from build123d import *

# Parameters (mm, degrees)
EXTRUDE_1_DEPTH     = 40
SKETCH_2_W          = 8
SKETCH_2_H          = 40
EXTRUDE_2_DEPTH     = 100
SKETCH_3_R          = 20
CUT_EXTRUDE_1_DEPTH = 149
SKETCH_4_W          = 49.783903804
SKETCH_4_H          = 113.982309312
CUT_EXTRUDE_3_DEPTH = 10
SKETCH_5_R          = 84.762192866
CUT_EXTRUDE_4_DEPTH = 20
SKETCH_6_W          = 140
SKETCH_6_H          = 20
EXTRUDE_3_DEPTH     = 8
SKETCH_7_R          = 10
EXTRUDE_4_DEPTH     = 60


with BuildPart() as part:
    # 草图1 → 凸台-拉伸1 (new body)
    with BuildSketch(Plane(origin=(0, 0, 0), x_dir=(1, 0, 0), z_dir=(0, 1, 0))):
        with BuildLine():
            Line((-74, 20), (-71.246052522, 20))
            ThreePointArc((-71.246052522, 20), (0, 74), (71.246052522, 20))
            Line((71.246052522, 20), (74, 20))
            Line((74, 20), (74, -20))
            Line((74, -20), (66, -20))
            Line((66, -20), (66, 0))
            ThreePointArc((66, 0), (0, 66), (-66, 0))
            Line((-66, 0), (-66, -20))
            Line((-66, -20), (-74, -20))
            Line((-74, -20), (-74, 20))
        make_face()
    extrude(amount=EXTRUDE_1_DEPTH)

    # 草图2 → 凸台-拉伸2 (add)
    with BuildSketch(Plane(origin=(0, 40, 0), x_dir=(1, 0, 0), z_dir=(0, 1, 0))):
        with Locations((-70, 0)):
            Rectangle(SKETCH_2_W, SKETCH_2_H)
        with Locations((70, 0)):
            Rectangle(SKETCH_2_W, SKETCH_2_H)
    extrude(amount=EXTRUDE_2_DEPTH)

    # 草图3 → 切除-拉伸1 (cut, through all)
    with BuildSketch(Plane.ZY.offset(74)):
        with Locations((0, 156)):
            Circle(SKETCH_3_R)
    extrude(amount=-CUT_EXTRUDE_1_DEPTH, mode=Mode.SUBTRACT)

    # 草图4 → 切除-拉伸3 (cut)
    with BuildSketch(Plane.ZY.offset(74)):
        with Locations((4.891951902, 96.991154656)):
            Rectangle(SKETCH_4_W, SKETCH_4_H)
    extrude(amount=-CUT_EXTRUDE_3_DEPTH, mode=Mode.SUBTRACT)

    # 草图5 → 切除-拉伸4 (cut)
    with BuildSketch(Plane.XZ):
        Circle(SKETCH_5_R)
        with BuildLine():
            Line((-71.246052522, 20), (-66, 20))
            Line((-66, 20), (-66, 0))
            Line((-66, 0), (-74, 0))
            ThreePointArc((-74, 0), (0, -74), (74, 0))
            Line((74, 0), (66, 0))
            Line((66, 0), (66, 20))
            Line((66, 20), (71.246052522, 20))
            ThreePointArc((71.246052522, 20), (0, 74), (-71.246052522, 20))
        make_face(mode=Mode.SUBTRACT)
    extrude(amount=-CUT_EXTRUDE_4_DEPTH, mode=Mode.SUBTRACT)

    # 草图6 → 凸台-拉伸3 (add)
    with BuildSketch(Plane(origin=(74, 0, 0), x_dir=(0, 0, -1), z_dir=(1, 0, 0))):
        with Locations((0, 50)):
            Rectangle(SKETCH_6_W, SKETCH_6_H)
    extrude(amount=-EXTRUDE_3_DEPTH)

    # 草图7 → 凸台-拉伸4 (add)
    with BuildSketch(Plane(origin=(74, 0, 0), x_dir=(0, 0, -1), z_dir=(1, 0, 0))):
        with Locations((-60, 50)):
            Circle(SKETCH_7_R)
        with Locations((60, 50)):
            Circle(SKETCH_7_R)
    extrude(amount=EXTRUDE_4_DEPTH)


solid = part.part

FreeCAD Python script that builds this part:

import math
import FreeCAD as App
import Part
import Sketcher

V = App.Vector


def add_polygon(sketch, points):
    """Adds a closed chain of lines whose ends are joined by coincident constraints."""
    first, n = sketch.GeometryCount, len(points)
    for a, b in zip(points, points[1:] + points[:1]):
        sketch.addGeometry(Part.LineSegment(App.Vector(*a, 0), App.Vector(*b, 0)), False)
    for i in range(n):
        sketch.addConstraint(Sketcher.Constraint("Coincident", first + i, 2, first + (i + 1) % n, 1))

doc = App.newDocument("Part")
params = doc.addObject("Spreadsheet::Sheet", "Params")
for row, (alias, value) in enumerate([
    ("sketch1_radius", "66 mm"),
    ("sketch1_radius2", "74 mm"),
    ("sketch1_width", "8 mm"),
    ("sketch1_height", "40 mm"),
    ("pad1_length", "40 mm"),
    ("sketch2_width", "8 mm"),
    ("sketch2_height", "40 mm"),
    ("pad2_length", "100 mm"),
    ("sketch3_diameter", "40 mm"),
    ("pocket2_length", "10 mm"),
    ("sketch5_radius", "74 mm"),
    ("sketch5_width", "8 mm"),
    ("sketch5_height", "20 mm"),
    ("pocket3_length", "20 mm"),
    ("sketch6_width", "20 mm"),
    ("sketch6_height", "140 mm"),
    ("pad3_length", "8 mm"),
    ("sketch7_diameter", "20 mm"),
    ("pad4_length", "60 mm"),
], start=1):
    params.set(f"A{row}", alias)
    params.set(f"B{row}", "=" + value)
    params.setAlias(f"B{row}", alias)

body = doc.addObject("PartDesign::Body", "Body")

# Sketch on XZ plane
sketch1 = body.newObject("Sketcher::SketchObject", "Sketch")
sketch1.AttachmentSupport = (doc.getObject("XZ_Plane"), [""])
sketch1.MapMode = "FlatFace"
sketch1.addGeometry(Part.LineSegment(V(-71.2, -20, 0), V(-74, -20, 0)), False)
sketch1.addGeometry(Part.LineSegment(V(-74, -20, 0), V(-74, 20, 0)), False)
sketch1.addGeometry(Part.LineSegment(V(-74, 20, 0), V(-66, 20, 0)), False)
sketch1.addGeometry(Part.LineSegment(V(-66, 20, 0), V(-66, 0, 0)), False)
sketch1.addGeometry(Part.ArcOfCircle(Part.Circle(V(0, 0, 0), V(0, 0, 1), 66), math.radians(180), math.radians(360)), False)
sketch1.addGeometry(Part.LineSegment(V(66, 0, 0), V(66, 20, 0)), False)
sketch1.addGeometry(Part.LineSegment(V(66, 20, 0), V(74, 20, 0)), False)
sketch1.addGeometry(Part.LineSegment(V(74, 20, 0), V(74, -20, 0)), False)
sketch1.addGeometry(Part.LineSegment(V(74, -20, 0), V(71.2, -20, 0)), False)
sketch1.addGeometry(Part.ArcOfCircle(Part.Circle(V(0, 0, 0), V(0, 0, 1), 74), math.radians(-164), math.radians(-16)), False)
sketch1.addConstraint(Sketcher.Constraint("Coincident", 0, 2, 1, 1))
sketch1.addConstraint(Sketcher.Constraint("Coincident", 1, 2, 2, 1))
sketch1.addConstraint(Sketcher.Constraint("Coincident", 2, 2, 3, 1))
sketch1.addConstraint(Sketcher.Constraint("Tangent", 3, 2, 4, 1))
sketch1.addConstraint(Sketcher.Constraint("Tangent", 4, 2, 5, 1))
sketch1.addConstraint(Sketcher.Constraint("Coincident", 5, 2, 6, 1))
sketch1.addConstraint(Sketcher.Constraint("Coincident", 6, 2, 7, 1))
sketch1.addConstraint(Sketcher.Constraint("Coincident", 7, 2, 8, 1))
sketch1.addConstraint(Sketcher.Constraint("Coincident", 8, 2, 9, 2))
sketch1.addConstraint(Sketcher.Constraint("Coincident", 9, 1, 0, 1))
sketch1.addConstraint(Sketcher.Constraint("Horizontal", 0))
sketch1.addConstraint(Sketcher.Constraint("Vertical", 1))
sketch1.addConstraint(Sketcher.Constraint("Horizontal", 2))
sketch1.addConstraint(Sketcher.Constraint("Vertical", 3))
sketch1.addConstraint(Sketcher.Constraint("Vertical", 5))
sketch1.addConstraint(Sketcher.Constraint("Horizontal", 6))
sketch1.addConstraint(Sketcher.Constraint("Vertical", 7))
sketch1.addConstraint(Sketcher.Constraint("Horizontal", 8))
sketch1.addConstraint(Sketcher.Constraint("Coincident", 4, 3, -1, 1))
sketch1.addConstraint(Sketcher.Constraint("Coincident", 9, 3, -1, 1))
sketch1.addConstraint(Sketcher.Constraint("Symmetric", 0, 2, 6, 2, -1, 1))
sketch1.addConstraint(Sketcher.Constraint("Horizontal", 2, 2, 5, 2))
sketch1.addConstraint(Sketcher.Constraint("Horizontal", 0, 2, 7, 2))
sketch1.addConstraint(Sketcher.Constraint("Radius", 4, 66.0))
sketch1.addConstraint(Sketcher.Constraint("Radius", 9, 74.0))
sketch1.addConstraint(Sketcher.Constraint("DistanceX", 2, 1, 2, 2, 8.0))
sketch1.addConstraint(Sketcher.Constraint("DistanceY", 1, 1, 1, 2, 40.0))
sketch1.setExpression("Constraints[23]", "Params.sketch1_radius")
sketch1.setExpression("Constraints[24]", "Params.sketch1_radius2")
sketch1.setExpression("Constraints[25]", "Params.sketch1_width")
sketch1.setExpression("Constraints[26]", "Params.sketch1_height")
pad1 = body.newObject("PartDesign::Pad", "Pad")
pad1.Profile = sketch1
pad1.setExpression("Length", "Params.pad1_length")
pad1.Reversed = True

# Sketch on XZ plane
sketch2 = body.newObject("Sketcher::SketchObject", "Sketch001")
sketch2.AttachmentSupport = (doc.getObject("XZ_Plane"), [""])
sketch2.MapMode = "FlatFace"
sketch2.AttachmentOffset = App.Placement(V(0, 0, -40), App.Rotation())
add_polygon(sketch2, [(-74, -20), (-74, 20), (-66, 20), (-66, -20)])  # lines 0-3
add_polygon(sketch2, [(66, -20), (66, 20), (74, 20), (74, -20)])  # lines 4-7
sketch2.addConstraint(Sketcher.Constraint("Vertical", 0))
sketch2.addConstraint(Sketcher.Constraint("Horizontal", 1))
sketch2.addConstraint(Sketcher.Constraint("Vertical", 2))
sketch2.addConstraint(Sketcher.Constraint("Horizontal", 3))
sketch2.addConstraint(Sketcher.Constraint("Vertical", 4))
sketch2.addConstraint(Sketcher.Constraint("Horizontal", 5))
sketch2.addConstraint(Sketcher.Constraint("Vertical", 6))
sketch2.addConstraint(Sketcher.Constraint("Horizontal", 7))
sketch2.addConstraint(Sketcher.Constraint("Symmetric", 2, 2, 4, 2, -1, 1))
sketch2.addConstraint(Sketcher.Constraint("Symmetric", 0, 2, 6, 2, -1, 1))
sketch2.addConstraint(Sketcher.Constraint("Horizontal", 1, 2, 4, 2))
sketch2.addConstraint(Sketcher.Constraint("DistanceX", 1, 1, 1, 2, 8.0))
sketch2.addConstraint(Sketcher.Constraint("DistanceY", 0, 1, 0, 2, 40.0))
sketch2.addConstraint(Sketcher.Constraint("DistanceX", 0, 2, -1, 1, 74.0))
sketch2.setExpression("Constraints[19]", "Params.sketch2_width")
sketch2.setExpression("Constraints[20]", "Params.sketch2_height")
pad2 = body.newObject("PartDesign::Pad", "Pad001")
pad2.Profile = sketch2
pad2.setExpression("Length", "Params.pad2_length")
pad2.Reversed = True

# Sketch on YZ plane
sketch3 = body.newObject("Sketcher::SketchObject", "Sketch002")
sketch3.AttachmentSupport = (doc.getObject("YZ_Plane"), [""])
sketch3.MapMode = "FlatFace"
sketch3.AttachmentOffset = App.Placement(V(0, 0, -74), App.Rotation())
sketch3.addGeometry(Part.Circle(V(156, 0, 0), V(0, 0, 1), 20), False)
sketch3.addConstraint(Sketcher.Constraint("PointOnObject", 0, 3, -1))
sketch3.addConstraint(Sketcher.Constraint("Diameter", 0, 40.0))
sketch3.addConstraint(Sketcher.Constraint("DistanceX", -1, 1, 0, 3, 156.0))
sketch3.setExpression("Constraints[1]", "Params.sketch3_diameter")
pocket1 = body.newObject("PartDesign::Pocket", "Pocket")
pocket1.Profile = sketch3
pocket1.Type = "ThroughAll"
pocket1.Reversed = True

# Sketch on YZ plane
sketch4 = body.newObject("Sketcher::SketchObject", "Sketch003")
sketch4.AttachmentSupport = (doc.getObject("YZ_Plane"), [""])
sketch4.MapMode = "FlatFace"
sketch4.AttachmentOffset = App.Placement(V(0, 0, -74), App.Rotation())
add_polygon(sketch4, [(154, -20), (40, -20), (40, 30), (154, 30)])  # lines 0-3
sketch4.addConstraint(Sketcher.Constraint("Horizontal", 0))
sketch4.addConstraint(Sketcher.Constraint("Vertical", 1))
sketch4.addConstraint(Sketcher.Constraint("Horizontal", 2))
sketch4.addConstraint(Sketcher.Constraint("Vertical", 3))
sketch4.addConstraint(Sketcher.Constraint("DistanceX", -1, 1, 0, 2, 40.0))
sketch4.addConstraint(Sketcher.Constraint("DistanceY", 0, 2, -1, 1, 20.0))
sketch4.addConstraint(Sketcher.Constraint("DistanceX", 0, 2, 0, 1, 113.982309))
sketch4.addConstraint(Sketcher.Constraint("DistanceY", 1, 1, 1, 2, 49.783904))
pocket2 = body.newObject("PartDesign::Pocket", "Pocket001")
pocket2.Profile = sketch4
pocket2.setExpression("Length", "Params.pocket2_length")
pocket2.Reversed = True

# Sketch on XZ plane
sketch5 = body.newObject("Sketcher::SketchObject", "Sketch004")
sketch5.AttachmentSupport = (doc.getObject("XZ_Plane"), [""])
sketch5.MapMode = "FlatFace"
sketch5.addGeometry(Part.Circle(V(0, 0, 0), V(0, 0, 1), 85), False)
sketch5.addGeometry(Part.LineSegment(V(-66, 20, 0), V(-71, 20, 0)), False)
sketch5.addGeometry(Part.ArcOfCircle(Part.Circle(V(0, 0, 0), V(0, 0, 1), 74), math.radians(16), math.radians(164)), False)
sketch5.addGeometry(Part.LineSegment(V(71, 20, 0), V(66, 20, 0)), False)
sketch5.addGeometry(Part.LineSegment(V(66, 20, 0), V(66, 0, 0)), False)
sketch5.addGeometry(Part.LineSegment(V(66, 0, 0), V(74, 0, 0)), False)
sketch5.addGeometry(Part.ArcOfCircle(Part.Circle(V(0, 0, 0), V(0, 0, 1), 74), math.radians(180), math.radians(360)), False)
sketch5.addGeometry(Part.LineSegment(V(-74, 0, 0), V(-66, 0, 0)), False)
sketch5.addGeometry(Part.LineSegment(V(-66, 0, 0), V(-66, 20, 0)), False)
sketch5.addConstraint(Sketcher.Constraint("Coincident", 1, 2, 2, 2))
sketch5.addConstraint(Sketcher.Constraint("Coincident", 2, 1, 3, 1))
sketch5.addConstraint(Sketcher.Constraint("Coincident", 3, 2, 4, 1))
sketch5.addConstraint(Sketcher.Constraint("Coincident", 4, 2, 5, 1))
sketch5.addConstraint(Sketcher.Constraint("Coincident", 5, 2, 6, 2))
sketch5.addConstraint(Sketcher.Constraint("Coincident", 6, 1, 7, 1))
sketch5.addConstraint(Sketcher.Constraint("Coincident", 7, 2, 8, 1))
sketch5.addConstraint(Sketcher.Constraint("Coincident", 8, 2, 1, 1))
sketch5.addConstraint(Sketcher.Constraint("Horizontal", 1))
sketch5.addConstraint(Sketcher.Constraint("Horizontal", 3))
sketch5.addConstraint(Sketcher.Constraint("Vertical", 4))
sketch5.addConstraint(Sketcher.Constraint("Horizontal", 5))
sketch5.addConstraint(Sketcher.Constraint("Horizontal", 7))
sketch5.addConstraint(Sketcher.Constraint("Vertical", 8))
sketch5.addConstraint(Sketcher.Constraint("Coincident", 0, 3, -1, 1))
sketch5.addConstraint(Sketcher.Constraint("Coincident", 2, 3, -1, 1))
sketch5.addConstraint(Sketcher.Constraint("Coincident", 6, 3, -1, 1))
sketch5.addConstraint(Sketcher.Constraint("Equal", 2, 6))
sketch5.addConstraint(Sketcher.Constraint("Symmetric", 4, 2, 7, 2, -1, 1))
sketch5.addConstraint(Sketcher.Constraint("PointOnObject", 4, 2, -1))
sketch5.addConstraint(Sketcher.Constraint("Horizontal", 1, 2, 2, 1))
sketch5.addConstraint(Sketcher.Constraint("Radius", 2, 74.0))
sketch5.addConstraint(Sketcher.Constraint("DistanceX", 5, 1, 5, 2, 8.0))
sketch5.addConstraint(Sketcher.Constraint("DistanceY", 4, 2, 4, 1, 20.0))
sketch5.addConstraint(Sketcher.Constraint("Diameter", 0, 169.524386))
sketch5.setExpression("Constraints[21]", "Params.sketch5_radius")
sketch5.setExpression("Constraints[22]", "Params.sketch5_width")
sketch5.setExpression("Constraints[23]", "Params.sketch5_height")
pocket3 = body.newObject("PartDesign::Pocket", "Pocket002")
pocket3.Profile = sketch5
pocket3.setExpression("Length", "Params.pocket3_length")

# Sketch on YZ plane
sketch6 = body.newObject("Sketcher::SketchObject", "Sketch005")
sketch6.AttachmentSupport = (doc.getObject("YZ_Plane"), [""])
sketch6.MapMode = "FlatFace"
sketch6.AttachmentOffset = App.Placement(V(0, 0, 74), App.Rotation())
add_polygon(sketch6, [(60, 70), (40, 70), (40, -70), (60, -70)])  # lines 0-3
sketch6.addConstraint(Sketcher.Constraint("Horizontal", 0))
sketch6.addConstraint(Sketcher.Constraint("Vertical", 1))
sketch6.addConstraint(Sketcher.Constraint("Horizontal", 2))
sketch6.addConstraint(Sketcher.Constraint("Vertical", 3))
sketch6.addConstraint(Sketcher.Constraint("DistanceX", 0, 2, 0, 1, 20.0))
sketch6.addConstraint(Sketcher.Constraint("DistanceY", 1, 2, 1, 1, 140.0))
sketch6.addConstraint(Sketcher.Constraint("DistanceX", -1, 1, 0, 2, 40.0))
sketch6.addConstraint(Sketcher.Constraint("DistanceY", -1, 1, 0, 2, 70.0))
sketch6.setExpression("Constraints[8]", "Params.sketch6_width")
sketch6.setExpression("Constraints[9]", "Params.sketch6_height")
pad3 = body.newObject("PartDesign::Pad", "Pad002")
pad3.Profile = sketch6
pad3.setExpression("Length", "Params.pad3_length")
pad3.Reversed = True

# Sketch on YZ plane
sketch7 = body.newObject("Sketcher::SketchObject", "Sketch006")
sketch7.AttachmentSupport = (doc.getObject("YZ_Plane"), [""])
sketch7.MapMode = "FlatFace"
sketch7.AttachmentOffset = App.Placement(V(0, 0, 74), App.Rotation())
sketch7.addGeometry(Part.Circle(V(50, 60, 0), V(0, 0, 1), 10), False)
sketch7.addGeometry(Part.Circle(V(50, -60, 0), V(0, 0, 1), 10), False)
sketch7.addConstraint(Sketcher.Constraint("Equal", 0, 1))
sketch7.addConstraint(Sketcher.Constraint("Symmetric", 0, 3, 1, 3, -1))
sketch7.addConstraint(Sketcher.Constraint("Diameter", 0, 20.0))
sketch7.addConstraint(Sketcher.Constraint("DistanceX", -1, 1, 0, 3, 50.0))
sketch7.addConstraint(Sketcher.Constraint("DistanceY", -1, 1, 0, 3, 60.0))
sketch7.setExpression("Constraints[2]", "Params.sketch7_diameter")
pad4 = body.newObject("PartDesign::Pad", "Pad003")
pad4.Profile = sketch7
pad4.setExpression("Length", "Params.pad4_length")

doc.recompute()
